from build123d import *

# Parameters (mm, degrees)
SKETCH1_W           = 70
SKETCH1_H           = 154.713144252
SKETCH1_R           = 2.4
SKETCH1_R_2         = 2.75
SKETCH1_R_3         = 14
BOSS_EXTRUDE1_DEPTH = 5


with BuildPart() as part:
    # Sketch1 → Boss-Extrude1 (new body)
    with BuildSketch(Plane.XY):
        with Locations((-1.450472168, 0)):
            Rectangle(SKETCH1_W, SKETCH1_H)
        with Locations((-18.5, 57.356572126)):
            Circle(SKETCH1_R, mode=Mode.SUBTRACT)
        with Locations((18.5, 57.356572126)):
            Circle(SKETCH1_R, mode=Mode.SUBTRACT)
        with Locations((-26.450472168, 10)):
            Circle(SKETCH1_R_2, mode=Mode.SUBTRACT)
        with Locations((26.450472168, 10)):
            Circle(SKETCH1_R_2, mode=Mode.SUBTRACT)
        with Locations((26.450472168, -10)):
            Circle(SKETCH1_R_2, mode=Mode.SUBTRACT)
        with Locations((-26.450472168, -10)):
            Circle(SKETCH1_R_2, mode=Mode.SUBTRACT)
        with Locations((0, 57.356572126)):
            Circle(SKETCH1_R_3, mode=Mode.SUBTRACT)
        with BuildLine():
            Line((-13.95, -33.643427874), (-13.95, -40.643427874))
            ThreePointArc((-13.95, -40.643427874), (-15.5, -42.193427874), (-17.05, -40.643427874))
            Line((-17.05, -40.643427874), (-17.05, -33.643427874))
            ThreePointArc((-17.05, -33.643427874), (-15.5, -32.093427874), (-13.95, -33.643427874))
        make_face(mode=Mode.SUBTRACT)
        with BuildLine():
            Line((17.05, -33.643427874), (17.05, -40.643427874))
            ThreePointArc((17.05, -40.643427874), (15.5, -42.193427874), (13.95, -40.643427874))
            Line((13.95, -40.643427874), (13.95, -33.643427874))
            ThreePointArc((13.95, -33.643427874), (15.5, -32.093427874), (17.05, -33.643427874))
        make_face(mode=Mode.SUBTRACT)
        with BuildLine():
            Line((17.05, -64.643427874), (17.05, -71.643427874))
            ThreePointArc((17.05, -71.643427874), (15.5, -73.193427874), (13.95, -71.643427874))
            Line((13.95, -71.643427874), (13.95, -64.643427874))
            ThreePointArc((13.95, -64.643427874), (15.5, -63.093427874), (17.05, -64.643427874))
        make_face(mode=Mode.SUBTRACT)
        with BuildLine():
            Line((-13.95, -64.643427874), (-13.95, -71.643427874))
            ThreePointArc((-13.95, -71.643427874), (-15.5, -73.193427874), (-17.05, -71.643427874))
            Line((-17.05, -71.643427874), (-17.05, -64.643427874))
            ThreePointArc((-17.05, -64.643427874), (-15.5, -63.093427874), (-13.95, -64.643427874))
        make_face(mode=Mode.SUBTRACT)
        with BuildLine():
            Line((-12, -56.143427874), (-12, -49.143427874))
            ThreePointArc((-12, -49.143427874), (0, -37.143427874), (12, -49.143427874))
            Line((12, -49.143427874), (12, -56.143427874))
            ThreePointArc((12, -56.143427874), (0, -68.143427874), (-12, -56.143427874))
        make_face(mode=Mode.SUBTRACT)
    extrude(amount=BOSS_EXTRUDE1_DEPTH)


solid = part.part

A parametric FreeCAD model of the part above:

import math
import FreeCAD as App
import Part
import Sketcher

doc = App.newDocument("Part")
body = doc.addObject("PartDesign::Body", "Body")

sketch1 = doc.addObject("Sketcher::SketchObject", "Sketch")
body.addObject(sketch1)
sketch1.AttachmentSupport = (doc.XY_Plane, [""])
sketch1.MapMode = "FlatFace"
sketch1.addGeometry([
    Part.LineSegment(App.Vector(-36.5, 77.4, 0), App.Vector(-36.5, -77.4, 0)),
    Part.LineSegment(App.Vector(-36.5, -77.4, 0), App.Vector(33.5, -77.4, 0)),
    Part.LineSegment(App.Vector(33.5, -77.4, 0), App.Vector(33.5, 77.4, 0)),
    Part.LineSegment(App.Vector(33.5, 77.4, 0), App.Vector(-36.5, 77.4, 0)),
    Part.ArcOfCircle(Part.Circle(App.Vector(-15.5, -64.6, 0), App.Vector(0, 0, 1), 1.6), math.radians(0), math.radians(180)),
    Part.LineSegment(App.Vector(-13.9, -64.6, 0), App.Vector(-13.9, -71.6, 0)),
    Part.ArcOfCircle(Part.Circle(App.Vector(-15.5, -71.6, 0), App.Vector(0, 0, 1), 1.6), math.radians(180), math.radians(360)),
    Part.LineSegment(App.Vector(-17.1, -71.6, 0), App.Vector(-17.1, -64.6, 0)),
    Part.ArcOfCircle(Part.Circle(App.Vector(-15.5, -33.6, 0), App.Vector(0, 0, 1), 1.6), math.radians(0), math.radians(180)),
    Part.LineSegment(App.Vector(-13.9, -33.6, 0), App.Vector(-13.9, -40.6, 0)),
    Part.ArcOfCircle(Part.Circle(App.Vector(-15.5, -40.6, 0), App.Vector(0, 0, 1), 1.6), math.radians(180), math.radians(360)),
    Part.LineSegment(App.Vector(-17.1, -40.6, 0), App.Vector(-17.1, -33.6, 0)),
    Part.ArcOfCircle(Part.Circle(App.Vector(0, -56.1, 0), App.Vector(0, 0, 1), 12), math.radians(180), math.radians(360)),
    Part.LineSegment(App.Vector(-12, -56.1, 0), App.Vector(-12, -49.1, 0)),
    Part.ArcOfCircle(Part.Circle(App.Vector(0, -49.1, 0), App.Vector(0, 0, 1), 12), math.radians(0), math.radians(180)),
    Part.LineSegment(App.Vector(12, -49.1, 0), App.Vector(12, -56.1, 0)),
    Part.Circle(App.Vector(-26.5, -10, 0), App.Vector(0, 0, 1), 2.8),
    Part.ArcOfCircle(Part.Circle(App.Vector(15.5, -64.6, 0), App.Vector(0, 0, 1), 1.6), math.radians(0), math.radians(180)),
    Part.LineSegment(App.Vector(17.1, -64.6, 0), App.Vector(17.1, -71.6, 0)),
    Part.ArcOfCircle(Part.Circle(App.Vector(15.5, -71.6, 0), App.Vector(0, 0, 1), 1.6), math.radians(180), math.radians(360)),
    Part.LineSegment(App.Vector(13.9, -71.6, 0), App.Vector(13.9, -64.6, 0)),
    Part.ArcOfCircle(Part.Circle(App.Vector(15.5, -33.6, 0), App.Vector(0, 0, 1), 1.6), math.radians(0), math.radians(180)),
    Part.LineSegment(App.Vector(17.1, -33.6, 0), App.Vector(17.1, -40.6, 0)),
    Part.ArcOfCircle(Part.Circle(App.Vector(15.5, -40.6, 0), App.Vector(0, 0, 1), 1.6), math.radians(180), math.radians(360)),
    Part.LineSegment(App.Vector(13.9, -40.6, 0), App.Vector(13.9, -33.6, 0)),
    Part.Circle(App.Vector(26.5, -10, 0), App.Vector(0, 0, 1), 2.8),
    Part.Circle(App.Vector(-26.5, 10, 0), App.Vector(0, 0, 1), 2.8),
    Part.Circle(App.Vector(-18.5, 57.4, 0), App.Vector(0, 0, 1), 2.4),
    Part.Circle(App.Vector(0, 57.4, 0), App.Vector(0, 0, 1), 14),
    Part.Circle(App.Vector(26.5, 10, 0), App.Vector(0, 0, 1), 2.8),
    Part.Circle(App.Vector(18.5, 57.4, 0), App.Vector(0, 0, 1), 2.4),
], False)
sketch1.addConstraint([
    Sketcher.Constraint("Coincident", 0, 2, 1, 1),
    Sketcher.Constraint("Coincident", 1, 2, 2, 1),
    Sketcher.Constraint("Coincident", 2, 2, 3, 1),
    Sketcher.Constraint("Coincident", 3, 2, 0, 1),
    Sketcher.Constraint("Tangent", 4, 1, 5, 1),
    Sketcher.Constraint("Tangent", 5, 2, 6, 2),
    Sketcher.Constraint("Tangent", 6, 1, 7, 1),
    Sketcher.Constraint("Tangent", 7, 2, 4, 2),
    Sketcher.Constraint("Tangent", 8, 1, 9, 1),
    Sketcher.Constraint("Tangent", 9, 2, 10, 2),
    Sketcher.Constraint("Tangent", 10, 1, 11, 1),
    Sketcher.Constraint("Tangent", 11, 2, 8, 2),
    Sketcher.Constraint("Tangent", 12, 1, 13, 1),
    Sketcher.Constraint("Tangent", 13, 2, 14, 2),
    Sketcher.Constraint("Tangent", 14, 1, 15, 1),
    Sketcher.Constraint("Tangent", 15, 2, 12, 2),
    Sketcher.Constraint("Tangent", 17, 1, 18, 1),
    Sketcher.Constraint("Tangent", 18, 2, 19, 2),
    Sketcher.Constraint("Tangent", 19, 1, 20, 1),
    Sketcher.Constraint("Tangent", 20, 2, 17, 2),
    Sketcher.Constraint("Tangent", 21, 1, 22, 1),
    Sketcher.Constraint("Tangent", 22, 2, 23, 2),
    Sketcher.Constraint("Tangent", 23, 1, 24, 1),
    Sketcher.Constraint("Tangent", 24, 2, 21, 2),
    Sketcher.Constraint("Vertical", 0),
    Sketcher.Constraint("Horizontal", 1),
    Sketcher.Constraint("Vertical", 2),
    Sketcher.Constraint("Horizontal", 3),
    Sketcher.Constraint("Vertical", 5),
    Sketcher.Constraint("Vertical", 7),
    Sketcher.Constraint("Vertical", 9),
    Sketcher.Constraint("Vertical", 11),
    Sketcher.Constraint("Vertical", 13),
    Sketcher.Constraint("Vertical", 15),
    Sketcher.Constraint("Vertical", 18),
    Sketcher.Constraint("Vertical", 20),
    Sketcher.Constraint("Vertical", 22),
    Sketcher.Constraint("Vertical", 24),
    Sketcher.Constraint("Equal", 6, 8),
    Sketcher.Constraint("Equal", 10, 17),
    Sketcher.Constraint("Equal", 19, 21),
    Sketcher.Constraint("Equal", 16, 25),
    Sketcher.Constraint("Equal", 25, 26),
    Sketcher.Constraint("Equal", 26, 29),
    Sketcher.Constraint("Equal", 27, 30),
    Sketcher.Constraint("Symmetric", 25, 3, 26, 3, -1, 1),
    Sketcher.Constraint("Symmetric", 16, 3, 29, 3, -1, 1),
    Sketcher.Constraint("Symmetric", 4, 3, 17, 3, -2),
    Sketcher.Constraint("Symmetric", 8, 3, 21, 3, -2),
    Sketcher.Constraint("Symmetric", 16, 3, 25, 3, -2),
    Sketcher.Constraint("Symmetric", 27, 3, 30, 3, -2),
    Sketcher.Constraint("PointOnObject", 12, 3, -2),
    Sketcher.Constraint("PointOnObject", 28, 3, -2),
    Sketcher.Constraint("Horizontal", 6, 3, 19, 3),
    Sketcher.Constraint("Horizontal", 10, 3, 23, 3),
    Sketcher.Constraint("Horizontal", 27, 3, 28, 3),
    Sketcher.Constraint("Vertical", 6, 3, 8, 3),
    Sketcher.Constraint("Equal", 7, 9),
    Sketcher.Constraint("Equal", 11, 13),
    Sketcher.Constraint("Diameter", 28, 28.0),
    Sketcher.Constraint("Radius", 12, 12.0),
    Sketcher.Constraint("Diameter", 16, 5.5),
    Sketcher.Constraint("Diameter", 27, 4.8),
    Sketcher.Constraint("DistanceX", 1, 1, 1, 2, 70.0),
    Sketcher.Constraint("DistanceY", 5, 2, 5, 1, 7.0),
    Sketcher.Constraint("Radius", 4, 1.55),
    Sketcher.Constraint("DistanceY", 16, 3, -1, 1, 10.0),
    Sketcher.Constraint("DistanceY", 4, 3, 8, 3, 31.0),
    Sketcher.Constraint("DistanceX", 4, 3, 17, 3, 31.0),
    Sketcher.Constraint("DistanceX", 27, 3, 8, 3, 3.0),
    Sketcher.Constraint("DistanceY", 8, 3, 27, 3, 91.0),
    Sketcher.Constraint("DistanceY", 30, 3, 2, 2, 20.0),
    Sketcher.Constraint("DistanceX", 3, 2, 26, 3, 10.0),
    Sketcher.Constraint("DistanceY", 4, 3, 12, 3, 8.5),
    Sketcher.Constraint("DistanceY", 0, 2, 0, 1, 154.713144),
    Sketcher.Constraint("DistanceY", 4, 3, -1, 1, 64.643428),
    Sketcher.Constraint("DistanceX", 16, 3, -1, 1, 26.450472),
])
pad1 = doc.addObject("PartDesign::Pad", "Pad")
body.addObject(pad1)
pad1.Profile = sketch1
pad1.Length = 5

doc.recompute()
